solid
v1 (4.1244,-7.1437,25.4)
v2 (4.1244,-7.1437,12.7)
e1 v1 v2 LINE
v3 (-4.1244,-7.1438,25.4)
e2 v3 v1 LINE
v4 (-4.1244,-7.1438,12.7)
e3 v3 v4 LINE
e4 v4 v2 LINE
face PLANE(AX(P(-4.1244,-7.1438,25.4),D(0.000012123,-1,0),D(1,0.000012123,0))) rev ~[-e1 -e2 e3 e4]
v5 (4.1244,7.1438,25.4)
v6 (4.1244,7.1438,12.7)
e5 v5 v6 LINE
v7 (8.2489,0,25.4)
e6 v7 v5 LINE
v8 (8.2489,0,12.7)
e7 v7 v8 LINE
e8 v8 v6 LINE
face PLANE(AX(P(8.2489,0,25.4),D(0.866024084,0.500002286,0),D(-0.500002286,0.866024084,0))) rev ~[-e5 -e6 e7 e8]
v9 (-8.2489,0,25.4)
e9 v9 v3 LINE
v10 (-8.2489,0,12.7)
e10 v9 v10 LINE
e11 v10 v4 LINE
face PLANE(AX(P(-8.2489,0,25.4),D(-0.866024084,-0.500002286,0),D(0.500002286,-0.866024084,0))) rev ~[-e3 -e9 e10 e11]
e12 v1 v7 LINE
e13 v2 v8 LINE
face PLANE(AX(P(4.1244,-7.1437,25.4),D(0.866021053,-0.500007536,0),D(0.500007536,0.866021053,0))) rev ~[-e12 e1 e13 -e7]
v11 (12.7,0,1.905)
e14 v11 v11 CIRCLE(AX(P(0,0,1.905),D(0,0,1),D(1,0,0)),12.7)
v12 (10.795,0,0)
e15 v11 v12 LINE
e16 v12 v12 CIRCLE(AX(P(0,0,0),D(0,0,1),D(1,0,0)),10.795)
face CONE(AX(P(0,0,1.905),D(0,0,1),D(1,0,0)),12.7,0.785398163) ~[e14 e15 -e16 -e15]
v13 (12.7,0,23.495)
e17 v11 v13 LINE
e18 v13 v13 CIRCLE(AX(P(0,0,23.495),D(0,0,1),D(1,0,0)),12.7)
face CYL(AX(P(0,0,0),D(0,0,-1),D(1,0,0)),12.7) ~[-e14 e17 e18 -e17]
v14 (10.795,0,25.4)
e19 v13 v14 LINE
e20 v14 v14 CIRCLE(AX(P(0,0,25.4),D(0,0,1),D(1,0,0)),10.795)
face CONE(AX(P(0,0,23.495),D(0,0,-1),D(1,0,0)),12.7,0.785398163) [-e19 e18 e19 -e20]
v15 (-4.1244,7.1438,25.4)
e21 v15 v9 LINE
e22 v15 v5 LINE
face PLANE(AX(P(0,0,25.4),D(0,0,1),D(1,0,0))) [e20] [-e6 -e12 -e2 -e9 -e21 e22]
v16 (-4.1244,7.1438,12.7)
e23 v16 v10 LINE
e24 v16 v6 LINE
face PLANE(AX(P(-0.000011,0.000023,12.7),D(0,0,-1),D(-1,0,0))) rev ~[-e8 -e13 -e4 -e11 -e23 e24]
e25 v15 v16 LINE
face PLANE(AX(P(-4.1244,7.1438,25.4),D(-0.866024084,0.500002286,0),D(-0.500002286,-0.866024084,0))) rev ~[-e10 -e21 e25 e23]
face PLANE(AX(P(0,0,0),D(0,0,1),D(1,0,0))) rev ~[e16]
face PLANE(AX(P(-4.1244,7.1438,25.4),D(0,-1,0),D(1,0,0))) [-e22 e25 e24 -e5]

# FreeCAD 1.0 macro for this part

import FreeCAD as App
import Part
import Sketcher
from FreeCAD import Vector
Q = App.Units.Quantity


def edges_at(feature, points):
    """Names of the edges that pass closest to the given points."""
    edges = feature.Shape.Edges
    near = lambda p: min(range(len(edges)), key=lambda i: edges[i].distToShape(Part.Vertex(*p))[0])
    return sorted({f"Edge{near(p) + 1}" for p in points})

doc = App.newDocument("Part")
body = doc.addObject("PartDesign::Body", "Body")

# Sketch on XY plane
sketch1 = body.newObject("Sketcher::SketchObject", "Sketch")
sketch1.AttachmentSupport = (doc.getObject("XY_Plane"), [""])
sketch1.MapMode = "FlatFace"
sketch1.addGeometry(Part.Circle(Vector(0, 0, 0), Vector(0, 0, 1), 13), False)
sketch1.addConstraint([
    Sketcher.Constraint("Coincident", 0, 3, -1, 1),
    Sketcher.Constraint("Diameter", 0, Q("1 in")),
])
pad1 = body.newObject("PartDesign::Pad", "Pad")
pad1.Profile = sketch1
pad1.Length = Q("1 in")
doc.recompute()

chamfer = body.newObject("PartDesign::Chamfer", "Chamfer")
chamfer.Base = (pad1, edges_at(pad1, [(-12.7, 0, 0), (-12.7, 0, 25.4)]))
chamfer.Size = Q("0.075 in")

# Sketch on XY plane
sketch2 = body.newObject("Sketcher::SketchObject", "Sketch001")
sketch2.AttachmentSupport = (doc.getObject("XY_Plane"), [""])
sketch2.MapMode = "FlatFace"
sketch2.AttachmentOffset = App.Placement(Vector(0, 0, 1 * 25.4), App.Rotation())
sketch2.addGeometry([
    Part.LineSegment(Vector(4, 7, 0), Vector(-4, 7, 0)),  # 0
    Part.LineSegment(Vector(-4, 7, 0), Vector(-8, 0, 0)),  # 1
    Part.LineSegment(Vector(-8, 0, 0), Vector(-4, -7, 0)),  # 2
    Part.LineSegment(Vector(-4, -7, 0), Vector(4, -7, 0)),  # 3
    Part.LineSegment(Vector(4, -7, 0), Vector(8, 0, 0)),  # 4
    Part.LineSegment(Vector(8, 0, 0), Vector(4, 7, 0)),  # 5
], False)
sketch2.addConstraint([
    Sketcher.Constraint("Coincident", 0, 2, 1, 1),
    Sketcher.Constraint("Coincident", 1, 2, 2, 1),
    Sketcher.Constraint("Coincident", 2, 2, 3, 1),
    Sketcher.Constraint("Coincident", 3, 2, 4, 1),
    Sketcher.Constraint("Coincident", 4, 2, 5, 1),
    Sketcher.Constraint("Coincident", 5, 2, 0, 1),
    Sketcher.Constraint("Horizontal", 0),
    Sketcher.Constraint("Horizontal", 3),
    Sketcher.Constraint("Symmetric", 0, 2, 3, 2, -1, 1),
    Sketcher.Constraint("Symmetric", 1, 2, 4, 2, -1, 1),
    Sketcher.Constraint("PointOnObject", 1, 2, -1),
    Sketcher.Constraint("Parallel", 2, 5),
    Sketcher.Constraint("Vertical", 0, 2, 2, 2),
    Sketcher.Constraint("Angle", 1, Q("-120.0002 deg")),
    Sketcher.Constraint("DistanceY", -1, 1, 0, 2, Q("0.281252 in")),
    Sketcher.Constraint("DistanceX", 0, 2, 0, 1, 8.2488),
])
pocket1 = body.newObject("PartDesign::Pocket", "Pocket")
pocket1.Profile = sketch2
pocket1.Length = Q("0.5 in")

doc.recompute()
